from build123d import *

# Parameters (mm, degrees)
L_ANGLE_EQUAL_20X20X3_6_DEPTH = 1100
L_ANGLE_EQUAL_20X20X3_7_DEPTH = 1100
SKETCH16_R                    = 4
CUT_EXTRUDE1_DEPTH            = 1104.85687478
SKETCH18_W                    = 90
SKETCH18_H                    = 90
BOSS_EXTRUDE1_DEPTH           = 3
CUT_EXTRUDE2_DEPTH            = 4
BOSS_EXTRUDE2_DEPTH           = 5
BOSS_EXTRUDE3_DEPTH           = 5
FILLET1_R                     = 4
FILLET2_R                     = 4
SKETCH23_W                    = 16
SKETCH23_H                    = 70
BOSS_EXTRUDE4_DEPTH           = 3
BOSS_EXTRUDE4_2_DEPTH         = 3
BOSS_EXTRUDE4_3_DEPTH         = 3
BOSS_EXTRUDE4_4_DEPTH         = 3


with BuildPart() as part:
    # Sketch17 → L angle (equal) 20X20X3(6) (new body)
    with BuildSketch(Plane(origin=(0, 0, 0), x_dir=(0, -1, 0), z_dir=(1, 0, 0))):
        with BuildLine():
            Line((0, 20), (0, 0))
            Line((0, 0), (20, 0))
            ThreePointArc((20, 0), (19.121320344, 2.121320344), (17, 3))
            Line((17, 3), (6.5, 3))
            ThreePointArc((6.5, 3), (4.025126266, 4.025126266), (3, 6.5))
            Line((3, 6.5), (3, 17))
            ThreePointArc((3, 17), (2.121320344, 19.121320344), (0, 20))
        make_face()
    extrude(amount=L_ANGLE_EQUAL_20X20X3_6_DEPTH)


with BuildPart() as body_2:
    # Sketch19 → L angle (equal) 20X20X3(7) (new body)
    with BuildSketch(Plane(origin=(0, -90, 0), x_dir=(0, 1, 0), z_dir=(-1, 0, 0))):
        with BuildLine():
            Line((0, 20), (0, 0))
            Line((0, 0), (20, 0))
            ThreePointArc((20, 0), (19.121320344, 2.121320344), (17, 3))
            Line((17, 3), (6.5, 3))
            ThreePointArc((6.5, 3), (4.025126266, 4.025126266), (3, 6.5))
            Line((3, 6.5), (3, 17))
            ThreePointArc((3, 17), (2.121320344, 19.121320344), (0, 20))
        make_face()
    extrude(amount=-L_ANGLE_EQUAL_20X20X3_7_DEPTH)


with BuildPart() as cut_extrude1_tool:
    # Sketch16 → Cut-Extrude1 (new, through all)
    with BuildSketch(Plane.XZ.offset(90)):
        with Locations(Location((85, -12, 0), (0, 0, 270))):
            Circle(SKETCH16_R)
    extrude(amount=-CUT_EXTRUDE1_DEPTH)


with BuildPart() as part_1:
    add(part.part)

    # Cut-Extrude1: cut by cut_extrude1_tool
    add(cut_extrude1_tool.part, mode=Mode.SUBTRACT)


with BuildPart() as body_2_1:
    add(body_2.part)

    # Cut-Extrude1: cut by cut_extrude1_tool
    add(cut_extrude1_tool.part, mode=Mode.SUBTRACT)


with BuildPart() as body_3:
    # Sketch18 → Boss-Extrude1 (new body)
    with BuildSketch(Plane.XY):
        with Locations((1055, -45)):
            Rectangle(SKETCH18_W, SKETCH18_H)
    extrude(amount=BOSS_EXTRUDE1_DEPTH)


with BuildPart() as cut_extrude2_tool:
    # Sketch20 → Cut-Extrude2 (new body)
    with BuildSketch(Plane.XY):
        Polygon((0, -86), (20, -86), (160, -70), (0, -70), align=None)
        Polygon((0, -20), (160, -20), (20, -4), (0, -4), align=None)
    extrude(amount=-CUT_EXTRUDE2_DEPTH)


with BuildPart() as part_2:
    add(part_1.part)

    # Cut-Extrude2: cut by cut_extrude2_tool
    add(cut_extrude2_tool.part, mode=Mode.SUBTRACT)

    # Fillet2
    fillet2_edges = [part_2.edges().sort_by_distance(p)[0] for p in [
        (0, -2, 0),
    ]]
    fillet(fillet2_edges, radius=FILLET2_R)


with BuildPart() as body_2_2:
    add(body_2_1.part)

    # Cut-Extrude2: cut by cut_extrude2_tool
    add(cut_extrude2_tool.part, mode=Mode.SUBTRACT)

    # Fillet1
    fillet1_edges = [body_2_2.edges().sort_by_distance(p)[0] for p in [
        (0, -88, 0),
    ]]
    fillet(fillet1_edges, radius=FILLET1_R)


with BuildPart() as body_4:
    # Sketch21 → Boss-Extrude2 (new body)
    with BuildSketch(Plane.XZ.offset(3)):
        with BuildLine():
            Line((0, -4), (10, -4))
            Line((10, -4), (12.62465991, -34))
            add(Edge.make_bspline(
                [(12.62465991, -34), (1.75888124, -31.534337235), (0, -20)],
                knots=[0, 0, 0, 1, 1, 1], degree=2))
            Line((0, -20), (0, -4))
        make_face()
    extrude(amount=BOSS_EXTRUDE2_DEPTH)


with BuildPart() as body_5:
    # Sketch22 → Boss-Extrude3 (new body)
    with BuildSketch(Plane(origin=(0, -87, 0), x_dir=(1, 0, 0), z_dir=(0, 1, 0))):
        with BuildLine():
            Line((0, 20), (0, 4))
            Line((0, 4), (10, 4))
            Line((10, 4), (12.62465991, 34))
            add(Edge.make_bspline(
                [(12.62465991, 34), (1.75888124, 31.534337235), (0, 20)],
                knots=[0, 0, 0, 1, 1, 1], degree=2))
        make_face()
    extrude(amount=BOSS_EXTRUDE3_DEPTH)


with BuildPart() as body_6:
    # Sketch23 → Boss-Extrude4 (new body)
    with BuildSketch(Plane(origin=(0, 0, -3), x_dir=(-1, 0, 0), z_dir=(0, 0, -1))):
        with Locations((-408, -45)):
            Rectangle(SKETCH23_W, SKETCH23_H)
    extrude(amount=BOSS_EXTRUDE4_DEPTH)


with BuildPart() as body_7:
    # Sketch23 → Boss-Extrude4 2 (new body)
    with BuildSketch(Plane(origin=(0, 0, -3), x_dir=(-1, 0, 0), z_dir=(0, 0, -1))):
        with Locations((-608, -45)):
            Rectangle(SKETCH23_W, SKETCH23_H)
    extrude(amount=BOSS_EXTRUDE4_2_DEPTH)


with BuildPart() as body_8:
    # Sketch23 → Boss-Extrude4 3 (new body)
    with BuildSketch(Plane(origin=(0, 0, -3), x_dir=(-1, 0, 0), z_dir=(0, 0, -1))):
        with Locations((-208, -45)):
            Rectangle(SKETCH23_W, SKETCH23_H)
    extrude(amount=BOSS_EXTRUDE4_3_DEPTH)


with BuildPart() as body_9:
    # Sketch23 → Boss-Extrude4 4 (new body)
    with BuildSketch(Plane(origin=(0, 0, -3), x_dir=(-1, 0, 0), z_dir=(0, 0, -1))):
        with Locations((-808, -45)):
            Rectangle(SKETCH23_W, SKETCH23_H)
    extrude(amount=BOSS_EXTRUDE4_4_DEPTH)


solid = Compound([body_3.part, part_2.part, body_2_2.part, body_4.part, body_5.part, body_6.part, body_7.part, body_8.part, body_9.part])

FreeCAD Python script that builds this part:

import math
import FreeCAD as App
import Part
import Sketcher
Q = App.Units.Quantity


def edges_at(feature, points):
    """Names of the edges that pass closest to the given points."""
    edges = feature.Shape.Edges
    near = lambda p: min(range(len(edges)), key=lambda i: edges[i].distToShape(Part.Vertex(*p))[0])
    return sorted({f"Edge{near(p) + 1}" for p in points})


def add_polygon(sketch, points):
    """Adds a closed chain of lines whose ends are joined by coincident constraints."""
    first, n = sketch.GeometryCount, len(points)
    for a, b in zip(points, points[1:] + points[:1]):
        sketch.addGeometry(Part.LineSegment(App.Vector(*a, 0), App.Vector(*b, 0)), False)
    for i in range(n):
        sketch.addConstraint(Sketcher.Constraint("Coincident", first + i, 2, first + (i + 1) % n, 1))

doc = App.newDocument("Part")
body = doc.addObject("PartDesign::Body", "Body")

# Sketch on YZ plane
sketch1 = body.newObject("Sketcher::SketchObject", "Sketch")
sketch1.AttachmentSupport = (doc.getObject("YZ_Plane"), [""])
sketch1.MapMode = "FlatFace"
sketch1.addGeometry([
    Part.LineSegment(App.Vector(0, -20, 0), App.Vector(0, 0, 0)),  # 0
    Part.LineSegment(App.Vector(0, 0, 0), App.Vector(-20, 0, 0)),  # 1
    Part.ArcOfCircle(Part.Circle(App.Vector(-17, 0, 0), App.Vector(0, 0, 1), 3), math.radians(180), math.radians(270)),  # 2
    Part.LineSegment(App.Vector(-17, -3, 0), App.Vector(-6.5, -3, 0)),  # 3
    Part.ArcOfCircle(Part.Circle(App.Vector(-6.5, -6.5, 0), App.Vector(0, 0, 1), 3.5), math.radians(0), math.radians(90)),  # 4
    Part.LineSegment(App.Vector(-3, -6.5, 0), App.Vector(-3, -17, 0)),  # 5
    Part.ArcOfCircle(Part.Circle(App.Vector(0, -17, 0), App.Vector(0, 0, 1), 3), math.radians(180), math.radians(270)),  # 6
], False)
sketch1.addConstraint([
    Sketcher.Constraint("Coincident", 0, 2, 1, 1),
    Sketcher.Constraint("Coincident", 1, 2, 2, 1),
    Sketcher.Constraint("Tangent", 2, 2, 3, 1),
    Sketcher.Constraint("Tangent", 3, 2, 4, 2),
    Sketcher.Constraint("Tangent", 4, 1, 5, 1),
    Sketcher.Constraint("Tangent", 5, 2, 6, 1),
    Sketcher.Constraint("Coincident", 6, 2, 0, 1),
    Sketcher.Constraint("Vertical", 0),
    Sketcher.Constraint("Horizontal", 1),
    Sketcher.Constraint("Horizontal", 3),
    Sketcher.Constraint("Vertical", 5),
    Sketcher.Constraint("Coincident", 0, 2, -1, 1),
    Sketcher.Constraint("Equal", 2, 6),
    Sketcher.Constraint("PointOnObject", 2, 3, -1),
    Sketcher.Constraint("PointOnObject", 6, 3, -2),
    Sketcher.Constraint("Equal", 1, 0),
    Sketcher.Constraint("Radius", 2, Q("3 mm")),
    Sketcher.Constraint("Radius", 4, Q("3.5 mm")),
    Sketcher.Constraint("DistanceX", 1, 2, 1, 1, Q("20 mm")),
])
pad1 = body.newObject("PartDesign::Pad", "Pad")
pad1.Profile = sketch1
pad1.Length = 1100
body2 = doc.addObject("PartDesign::Body", "Body001")

# Sketch on YZ plane
sketch2 = body2.newObject("Sketcher::SketchObject", "Sketch001")
sketch2.AttachmentSupport = (doc.getObject("YZ_Plane001"), [""])
sketch2.MapMode = "FlatFace"
sketch2.addGeometry([
    Part.LineSegment(App.Vector(-90, -20, 0), App.Vector(-90, 0, 0)),  # 0
    Part.LineSegment(App.Vector(-90, 0, 0), App.Vector(-70, 0, 0)),  # 1
    Part.ArcOfCircle(Part.Circle(App.Vector(-73, 0, 0), App.Vector(0, 0, 1), 3), math.radians(-90), math.radians(0)),  # 2
    Part.LineSegment(App.Vector(-73, -3, 0), App.Vector(-83.5, -3, 0)),  # 3
    Part.ArcOfCircle(Part.Circle(App.Vector(-83.5, -6.5, 0), App.Vector(0, 0, 1), 3.5), math.radians(90), math.radians(180)),  # 4
    Part.LineSegment(App.Vector(-87, -6.5, 0), App.Vector(-87, -17, 0)),  # 5
    Part.ArcOfCircle(Part.Circle(App.Vector(-90, -17, 0), App.Vector(0, 0, 1), 3), math.radians(-90), math.radians(0)),  # 6
], False)
sketch2.addConstraint([
    Sketcher.Constraint("Coincident", 0, 2, 1, 1),
    Sketcher.Constraint("Coincident", 1, 2, 2, 2),
    Sketcher.Constraint("Tangent", 2, 1, 3, 1),
    Sketcher.Constraint("Tangent", 3, 2, 4, 1),
    Sketcher.Constraint("Tangent", 4, 2, 5, 1),
    Sketcher.Constraint("Tangent", 5, 2, 6, 2),
    Sketcher.Constraint("Coincident", 6, 1, 0, 1),
    Sketcher.Constraint("Vertical", 0),
    Sketcher.Constraint("Horizontal", 1),
    Sketcher.Constraint("Horizontal", 3),
    Sketcher.Constraint("Vertical", 5),
    Sketcher.Constraint("Equal", 2, 6),
    Sketcher.Constraint("PointOnObject", 2, 3, -1),
    Sketcher.Constraint("PointOnObject", 0, 2, -1),
    Sketcher.Constraint("Vertical", 6, 3, 0, 2),
    Sketcher.Constraint("Equal", 1, 0),
    Sketcher.Constraint("Radius", 2, Q("3 mm")),
    Sketcher.Constraint("Radius", 4, Q("3.5 mm")),
    Sketcher.Constraint("DistanceX", 1, 1, 1, 2, Q("20 mm")),
    Sketcher.Constraint("DistanceX", 2, 3, -1, 1, Q("73 mm")),
])
pad2 = body2.newObject("PartDesign::Pad", "Pad001")
pad2.Profile = sketch2
pad2.Length = 1100
body3 = doc.addObject("PartDesign::Body", "Body002")

# Sketch on XZ plane
sketch3 = body3.newObject("Sketcher::SketchObject", "Sketch002")
sketch3.AttachmentSupport = (doc.getObject("XZ_Plane002"), [""])
sketch3.MapMode = "FlatFace"
sketch3.AttachmentOffset = App.Placement(App.Vector(0, 0, 90), App.Rotation())
sketch3.addGeometry(Part.Circle(App.Vector(85, -12, 0), App.Vector(0, 0, 1), 4), False)
sketch3.addConstraint([
    Sketcher.Constraint("Diameter", 0, Q("8 mm")),
    Sketcher.Constraint("DistanceX", -1, 1, 0, 3, Q("85 mm")),
    Sketcher.Constraint("DistanceY", 0, 3, -1, 1, Q("12 mm")),
])
pad3 = body3.newObject("PartDesign::Pad", "Pad002")
pad3.Profile = sketch3
pad3.Length = 1104.856875
pad3.Reversed = True
doc.recompute()

body4 = doc.addObject("PartDesign::Body", "Body003")
body4.BaseFeature = body3
boolean = body.newObject("PartDesign::Boolean", "Boolean")
boolean.Type = "Cut"
boolean.addObjects([body4])
doc.recompute()

boolean2 = body2.newObject("PartDesign::Boolean", "Boolean001")
boolean2.Type = "Cut"
boolean2.addObjects([body3])
body5 = doc.addObject("PartDesign::Body", "Body004")

# Sketch on XY plane
sketch4 = body5.newObject("Sketcher::SketchObject", "Sketch003")
sketch4.AttachmentSupport = (doc.getObject("XY_Plane004"), [""])
sketch4.MapMode = "FlatFace"
add_polygon(sketch4, [(1010, 0), (1010, -90), (1100, -90), (1100, 0)])  # lines 0-3
sketch4.addConstraint([
    Sketcher.Constraint("Vertical", 0),
    Sketcher.Constraint("Horizontal", 1),
    Sketcher.Constraint("Vertical", 2),
    Sketcher.Constraint("Horizontal", 3),
    Sketcher.Constraint("PointOnObject", 2, 2, -1),
    Sketcher.Constraint("Equal", 3, 0),
    Sketcher.Constraint("DistanceX", 1, 1, 1, 2, Q("90 mm")),
    Sketcher.Constraint("DistanceX", -1, 1, 0, 2, Q("1010 mm")),
])
pad4 = body5.newObject("PartDesign::Pad", "Pad003")
pad4.Profile = sketch4
pad4.Length = 3
body6 = doc.addObject("PartDesign::Body", "Body005")
body6.AllowCompound = True

# Sketch on XY plane
sketch5 = body6.newObject("Sketcher::SketchObject", "Sketch004")
sketch5.AttachmentSupport = (doc.getObject("XY_Plane005"), [""])
sketch5.MapMode = "FlatFace"
add_polygon(sketch5, [(0, -86), (20, -86), (160, -70), (0, -70)])  # lines 0-3
add_polygon(sketch5, [(0, -20), (160, -20), (20, -4), (0, -4)])  # lines 4-7
sketch5.addConstraint([
    Sketcher.Constraint("Horizontal", 0),
    Sketcher.Constraint("Horizontal", 2),
    Sketcher.Constraint("Vertical", 3),
    Sketcher.Constraint("Horizontal", 4),
    Sketcher.Constraint("Horizontal", 6),
    Sketcher.Constraint("Vertical", 7),
    Sketcher.Constraint("PointOnObject", 2, 2, -2),
    Sketcher.Constraint("PointOnObject", 6, 2, -2),
    Sketcher.Constraint("Vertical", 1, 2, 4, 2),
    Sketcher.Constraint("Vertical", 0, 2, 5, 2),
    Sketcher.Constraint("Equal", 3, 7),
    Sketcher.Constraint("DistanceX", 0, 1, 0, 2, Q("20 mm")),
    Sketcher.Constraint("DistanceX", 2, 2, 2, 1, Q("160 mm")),
    Sketcher.Constraint("DistanceY", 3, 2, 3, 1, Q("16 mm")),
    Sketcher.Constraint("DistanceY", 0, 2, -1, 1, Q("86 mm")),
    Sketcher.Constraint("DistanceY", 4, 2, -1, 1, Q("20 mm")),
])
pad5 = body6.newObject("PartDesign::Pad", "Pad004")
pad5.Profile = sketch5
pad5.Length = 4
pad5.Reversed = True
doc.recompute()

body7 = doc.addObject("PartDesign::Body", "Body006")
body7.BaseFeature = body6
boolean3 = body.newObject("PartDesign::Boolean", "Boolean002")
boolean3.Type = "Cut"
boolean3.addObjects([body7])
doc.recompute()

fillet = body.newObject("PartDesign::Fillet", "Fillet")
fillet.Base = (boolean3, edges_at(boolean3, [(0, -2, 0)]))
fillet.Radius = 4
doc.recompute()

boolean4 = body2.newObject("PartDesign::Boolean", "Boolean003")
boolean4.Type = "Cut"
boolean4.addObjects([body6])
doc.recompute()

fillet2 = body2.newObject("PartDesign::Fillet", "Fillet001")
fillet2.Base = (boolean4, edges_at(boolean4, [(0, -88, 0)]))
fillet2.Radius = 4
body8 = doc.addObject("PartDesign::Body", "Body007")

# Sketch on XZ plane
sketch6 = body8.newObject("Sketcher::SketchObject", "Sketch005")
sketch6.AttachmentSupport = (doc.getObject("XZ_Plane007"), [""])
sketch6.MapMode = "FlatFace"
sketch6.AttachmentOffset = App.Placement(App.Vector(0, 0, 3), App.Rotation())
sketch6.addGeometry([
    Part.LineSegment(App.Vector(10, -4, 0), App.Vector(0, -4, 0)),
    Part.LineSegment(App.Vector(0, -4, 0), App.Vector(0, -20, 0)),
    Part.BSplineCurve([App.Vector(12.62466, -34, 0), App.Vector(1.758881, -31.534337, 0), App.Vector(0, -20, 0)], [3, 3], [0, 1], False, 2, [1, 1, 1], False),
    Part.LineSegment(App.Vector(12.62466, -34, 0), App.Vector(10, -4, 0)),
], False)
sketch6.addConstraint([
    Sketcher.Constraint("Block", 2),
    Sketcher.Constraint("Coincident", 0, 2, 1, 1),
    Sketcher.Constraint("Coincident", 1, 2, 2, 2),
    Sketcher.Constraint("Coincident", 2, 1, 3, 1),
    Sketcher.Constraint("Coincident", 3, 2, 0, 1),
    Sketcher.Constraint("Horizontal", 0),
    Sketcher.Constraint("Vertical", 1),
    Sketcher.Constraint("DistanceX", 0, 2, 0, 1, Q("10 mm")),
    Sketcher.Constraint("DistanceY", 1, 2, 1, 1, Q("16 mm")),
])
pad6 = body8.newObject("PartDesign::Pad", "Pad005")
pad6.Profile = sketch6
pad6.Length = 5
body9 = doc.addObject("PartDesign::Body", "Body008")

# Sketch on XZ plane
sketch7 = body9.newObject("Sketcher::SketchObject", "Sketch006")
sketch7.AttachmentSupport = (doc.getObject("XZ_Plane008"), [""])
sketch7.MapMode = "FlatFace"
sketch7.AttachmentOffset = App.Placement(App.Vector(0, 0, 87), App.Rotation())
sketch7.addGeometry([
    Part.LineSegment(App.Vector(0, -20, 0), App.Vector(0, -4, 0)),
    Part.LineSegment(App.Vector(0, -4, 0), App.Vector(10, -4, 0)),
    Part.LineSegment(App.Vector(10, -4, 0), App.Vector(12.62466, -34, 0)),
    Part.BSplineCurve([App.Vector(12.62466, -34, 0), App.Vector(1.758881, -31.534337, 0), App.Vector(0, -20, 0)], [3, 3], [0, 1], False, 2, [1, 1, 1], False),
], False)
sketch7.addConstraint([
    Sketcher.Constraint("Block", 3),
    Sketcher.Constraint("Coincident", 0, 2, 1, 1),
    Sketcher.Constraint("Coincident", 1, 2, 2, 1),
    Sketcher.Constraint("Coincident", 2, 2, 3, 1),
    Sketcher.Constraint("Coincident", 3, 2, 0, 1),
    Sketcher.Constraint("Vertical", 0),
    Sketcher.Constraint("Horizontal", 1),
    Sketcher.Constraint("DistanceX", 1, 1, 1, 2, Q("10 mm")),
    Sketcher.Constraint("DistanceY", 0, 1, 0, 2, Q("16 mm")),
])
pad7 = body9.newObject("PartDesign::Pad", "Pad006")
pad7.Profile = sketch7
pad7.Length = 5
pad7.Reversed = True
body10 = doc.addObject("PartDesign::Body", "Body009")

# Sketch on XY plane
sketch8 = body10.newObject("Sketcher::SketchObject", "Sketch007")
sketch8.AttachmentSupport = (doc.getObject("XY_Plane009"), [""])
sketch8.MapMode = "FlatFace"
sketch8.AttachmentOffset = App.Placement(App.Vector(0, 0, -3), App.Rotation())
add_polygon(sketch8, [(416, -10), (416, -80), (400, -80), (400, -10)])  # lines 0-3
sketch8.addConstraint([
    Sketcher.Constraint("Vertical", 0),
    Sketcher.Constraint("Horizontal", 1),
    Sketcher.Constraint("Vertical", 2),
    Sketcher.Constraint("Horizontal", 3),
    Sketcher.Constraint("DistanceX", 1, 2, 1, 1, Q("16 mm")),
    Sketcher.Constraint("DistanceY", 0, 2, 0, 1, Q("70 mm")),
    Sketcher.Constraint("DistanceX", -1, 1, 0, 2, Q("416 mm")),
    Sketcher.Constraint("DistanceY", 0, 2, -1, 1, Q("80 mm")),
])
pad8 = body10.newObject("PartDesign::Pad", "Pad007")
pad8.Profile = sketch8
pad8.Length = 3
pad8.Reversed = True
body11 = doc.addObject("PartDesign::Body", "Body010")

# Sketch on XY plane
sketch9 = body11.newObject("Sketcher::SketchObject", "Sketch008")
sketch9.AttachmentSupport = (doc.getObject("XY_Plane010"), [""])
sketch9.MapMode = "FlatFace"
sketch9.AttachmentOffset = App.Placement(App.Vector(0, 0, -3), App.Rotation())
add_polygon(sketch9, [(616, -10), (616, -80), (600, -80), (600, -10)])  # lines 0-3
sketch9.addConstraint([
    Sketcher.Constraint("Vertical", 0),
    Sketcher.Constraint("Horizontal", 1),
    Sketcher.Constraint("Vertical", 2),
    Sketcher.Constraint("Horizontal", 3),
    Sketcher.Constraint("DistanceX", 1, 2, 1, 1, Q("16 mm")),
    Sketcher.Constraint("DistanceY", 0, 2, 0, 1, Q("70 mm")),
    Sketcher.Constraint("DistanceX", -1, 1, 0, 2, Q("616 mm")),
    Sketcher.Constraint("DistanceY", 0, 2, -1, 1, Q("80 mm")),
])
pad9 = body11.newObject("PartDesign::Pad", "Pad008")
pad9.Profile = sketch9
pad9.Length = 3
pad9.Reversed = True
body12 = doc.addObject("PartDesign::Body", "Body011")

# Sketch on XY plane
sketch10 = body12.newObject("Sketcher::SketchObject", "Sketch009")
sketch10.AttachmentSupport = (doc.getObject("XY_Plane011"), [""])
sketch10.MapMode = "FlatFace"
sketch10.AttachmentOffset = App.Placement(App.Vector(0, 0, -3), App.Rotation())
add_polygon(sketch10, [(216, -10), (216, -80), (200, -80), (200, -10)])  # lines 0-3
sketch10.addConstraint([
    Sketcher.Constraint("Vertical", 0),
    Sketcher.Constraint("Horizontal", 1),
    Sketcher.Constraint("Vertical", 2),
    Sketcher.Constraint("Horizontal", 3),
    Sketcher.Constraint("DistanceX", 1, 2, 1, 1, Q("16 mm")),
    Sketcher.Constraint("DistanceY", 0, 2, 0, 1, Q("70 mm")),
    Sketcher.Constraint("DistanceX", -1, 1, 0, 2, Q("216 mm")),
    Sketcher.Constraint("DistanceY", 0, 2, -1, 1, Q("80 mm")),
])
pad10 = body12.newObject("PartDesign::Pad", "Pad009")
pad10.Profile = sketch10
pad10.Length = 3
pad10.Reversed = True
body13 = doc.addObject("PartDesign::Body", "Body012")

# Sketch on XY plane
sketch11 = body13.newObject("Sketcher::SketchObject", "Sketch010")
sketch11.AttachmentSupport = (doc.getObject("XY_Plane012"), [""])
sketch11.MapMode = "FlatFace"
sketch11.AttachmentOffset = App.Placement(App.Vector(0, 0, -3), App.Rotation())
add_polygon(sketch11, [(816, -10), (816, -80), (800, -80), (800, -10)])  # lines 0-3
sketch11.addConstraint([
    Sketcher.Constraint("Vertical", 0),
    Sketcher.Constraint("Horizontal", 1),
    Sketcher.Constraint("Vertical", 2),
    Sketcher.Constraint("Horizontal", 3),
    Sketcher.Constraint("DistanceX", 1, 2, 1, 1, Q("16 mm")),
    Sketcher.Constraint("DistanceY", 0, 2, 0, 1, Q("70 mm")),
    Sketcher.Constraint("DistanceX", -1, 1, 0, 2, Q("816 mm")),
    Sketcher.Constraint("DistanceY", 0, 2, -1, 1, Q("80 mm")),
])
pad11 = body13.newObject("PartDesign::Pad", "Pad010")
pad11.Profile = sketch11
pad11.Length = 3
pad11.Reversed = True

doc.recompute()
